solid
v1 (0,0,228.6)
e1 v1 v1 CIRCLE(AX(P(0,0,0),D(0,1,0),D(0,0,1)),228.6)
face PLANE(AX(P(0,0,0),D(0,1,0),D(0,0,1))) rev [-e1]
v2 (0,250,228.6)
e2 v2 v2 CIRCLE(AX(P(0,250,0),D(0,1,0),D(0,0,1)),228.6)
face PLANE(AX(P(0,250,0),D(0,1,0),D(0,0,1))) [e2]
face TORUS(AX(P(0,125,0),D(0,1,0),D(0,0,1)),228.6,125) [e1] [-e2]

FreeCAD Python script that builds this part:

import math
import FreeCAD as App
import Part
import Sketcher
from FreeCAD import Vector

doc = App.newDocument("Part")
params = doc.addObject("Spreadsheet::Sheet", "Params")
for row, (alias, value) in enumerate([
    ("sketch1_diameter", "457.2 mm"),
    ("pad1_length", "250 mm"),
    ("sketch2_radius", "125 mm"),
    ("revolution_angle", "360 deg"),
], start=1):
    params.set(f"A{row}", alias)
    params.set(f"B{row}", "=" + value)
    params.setAlias(f"B{row}", alias)

body = doc.addObject("PartDesign::Body", "Body")

# Sketch on XZ plane
sketch1 = body.newObject("Sketcher::SketchObject", "Sketch")
sketch1.AttachmentSupport = (doc.getObject("XZ_Plane"), [""])
sketch1.MapMode = "FlatFace"
sketch1.addGeometry(Part.Circle(Vector(0, 0, 0), Vector(0, 0, 1), 229), False)
sketch1.addConstraint([
    Sketcher.Constraint("Coincident", 0, 3, -1, 1),
    Sketcher.Constraint("Diameter", 0, 457.2),
])
sketch1.setExpression("Constraints[1]", "Params.sketch1_diameter")
pad1 = body.newObject("PartDesign::Pad", "Pad")
pad1.Profile = sketch1
pad1.setExpression("Length", "Params.pad1_length")
pad1.Reversed = True

# Sketch on XY plane
sketch2 = body.newObject("Sketcher::SketchObject", "Sketch001")
sketch2.AttachmentSupport = (doc.getObject("XY_Plane"), [""])
sketch2.MapMode = "FlatFace"
sketch2.addGeometry([
    Part.LineSegment(Vector(229, 250, 0), Vector(229, 0, 0)),
    Part.ArcOfCircle(Part.Circle(Vector(229, 125, 0), Vector(0, 0, 1), 125), math.radians(-90), math.radians(90)),
], False)
sketch2.addConstraint([
    Sketcher.Constraint("Coincident", 0, 1, 1, 2),
    Sketcher.Constraint("Coincident", 1, 1, 0, 2),
    Sketcher.Constraint("Vertical", 0),
    Sketcher.Constraint("PointOnObject", 1, 1, -1),
    Sketcher.Constraint("Vertical", 1, 3, 0, 1),
    Sketcher.Constraint("Radius", 1, 125.0),
    Sketcher.Constraint("DistanceX", -1, 1, 1, 3, 228.6),
])
sketch2.setExpression("Constraints[5]", "Params.sketch2_radius")
revolution = body.newObject("PartDesign::Revolution", "Revolution")
revolution.Profile = sketch2
revolution.ReferenceAxis = (sketch2, ["V_Axis"])
revolution.setExpression("Angle", "Params.revolution_angle")

doc.recompute()
